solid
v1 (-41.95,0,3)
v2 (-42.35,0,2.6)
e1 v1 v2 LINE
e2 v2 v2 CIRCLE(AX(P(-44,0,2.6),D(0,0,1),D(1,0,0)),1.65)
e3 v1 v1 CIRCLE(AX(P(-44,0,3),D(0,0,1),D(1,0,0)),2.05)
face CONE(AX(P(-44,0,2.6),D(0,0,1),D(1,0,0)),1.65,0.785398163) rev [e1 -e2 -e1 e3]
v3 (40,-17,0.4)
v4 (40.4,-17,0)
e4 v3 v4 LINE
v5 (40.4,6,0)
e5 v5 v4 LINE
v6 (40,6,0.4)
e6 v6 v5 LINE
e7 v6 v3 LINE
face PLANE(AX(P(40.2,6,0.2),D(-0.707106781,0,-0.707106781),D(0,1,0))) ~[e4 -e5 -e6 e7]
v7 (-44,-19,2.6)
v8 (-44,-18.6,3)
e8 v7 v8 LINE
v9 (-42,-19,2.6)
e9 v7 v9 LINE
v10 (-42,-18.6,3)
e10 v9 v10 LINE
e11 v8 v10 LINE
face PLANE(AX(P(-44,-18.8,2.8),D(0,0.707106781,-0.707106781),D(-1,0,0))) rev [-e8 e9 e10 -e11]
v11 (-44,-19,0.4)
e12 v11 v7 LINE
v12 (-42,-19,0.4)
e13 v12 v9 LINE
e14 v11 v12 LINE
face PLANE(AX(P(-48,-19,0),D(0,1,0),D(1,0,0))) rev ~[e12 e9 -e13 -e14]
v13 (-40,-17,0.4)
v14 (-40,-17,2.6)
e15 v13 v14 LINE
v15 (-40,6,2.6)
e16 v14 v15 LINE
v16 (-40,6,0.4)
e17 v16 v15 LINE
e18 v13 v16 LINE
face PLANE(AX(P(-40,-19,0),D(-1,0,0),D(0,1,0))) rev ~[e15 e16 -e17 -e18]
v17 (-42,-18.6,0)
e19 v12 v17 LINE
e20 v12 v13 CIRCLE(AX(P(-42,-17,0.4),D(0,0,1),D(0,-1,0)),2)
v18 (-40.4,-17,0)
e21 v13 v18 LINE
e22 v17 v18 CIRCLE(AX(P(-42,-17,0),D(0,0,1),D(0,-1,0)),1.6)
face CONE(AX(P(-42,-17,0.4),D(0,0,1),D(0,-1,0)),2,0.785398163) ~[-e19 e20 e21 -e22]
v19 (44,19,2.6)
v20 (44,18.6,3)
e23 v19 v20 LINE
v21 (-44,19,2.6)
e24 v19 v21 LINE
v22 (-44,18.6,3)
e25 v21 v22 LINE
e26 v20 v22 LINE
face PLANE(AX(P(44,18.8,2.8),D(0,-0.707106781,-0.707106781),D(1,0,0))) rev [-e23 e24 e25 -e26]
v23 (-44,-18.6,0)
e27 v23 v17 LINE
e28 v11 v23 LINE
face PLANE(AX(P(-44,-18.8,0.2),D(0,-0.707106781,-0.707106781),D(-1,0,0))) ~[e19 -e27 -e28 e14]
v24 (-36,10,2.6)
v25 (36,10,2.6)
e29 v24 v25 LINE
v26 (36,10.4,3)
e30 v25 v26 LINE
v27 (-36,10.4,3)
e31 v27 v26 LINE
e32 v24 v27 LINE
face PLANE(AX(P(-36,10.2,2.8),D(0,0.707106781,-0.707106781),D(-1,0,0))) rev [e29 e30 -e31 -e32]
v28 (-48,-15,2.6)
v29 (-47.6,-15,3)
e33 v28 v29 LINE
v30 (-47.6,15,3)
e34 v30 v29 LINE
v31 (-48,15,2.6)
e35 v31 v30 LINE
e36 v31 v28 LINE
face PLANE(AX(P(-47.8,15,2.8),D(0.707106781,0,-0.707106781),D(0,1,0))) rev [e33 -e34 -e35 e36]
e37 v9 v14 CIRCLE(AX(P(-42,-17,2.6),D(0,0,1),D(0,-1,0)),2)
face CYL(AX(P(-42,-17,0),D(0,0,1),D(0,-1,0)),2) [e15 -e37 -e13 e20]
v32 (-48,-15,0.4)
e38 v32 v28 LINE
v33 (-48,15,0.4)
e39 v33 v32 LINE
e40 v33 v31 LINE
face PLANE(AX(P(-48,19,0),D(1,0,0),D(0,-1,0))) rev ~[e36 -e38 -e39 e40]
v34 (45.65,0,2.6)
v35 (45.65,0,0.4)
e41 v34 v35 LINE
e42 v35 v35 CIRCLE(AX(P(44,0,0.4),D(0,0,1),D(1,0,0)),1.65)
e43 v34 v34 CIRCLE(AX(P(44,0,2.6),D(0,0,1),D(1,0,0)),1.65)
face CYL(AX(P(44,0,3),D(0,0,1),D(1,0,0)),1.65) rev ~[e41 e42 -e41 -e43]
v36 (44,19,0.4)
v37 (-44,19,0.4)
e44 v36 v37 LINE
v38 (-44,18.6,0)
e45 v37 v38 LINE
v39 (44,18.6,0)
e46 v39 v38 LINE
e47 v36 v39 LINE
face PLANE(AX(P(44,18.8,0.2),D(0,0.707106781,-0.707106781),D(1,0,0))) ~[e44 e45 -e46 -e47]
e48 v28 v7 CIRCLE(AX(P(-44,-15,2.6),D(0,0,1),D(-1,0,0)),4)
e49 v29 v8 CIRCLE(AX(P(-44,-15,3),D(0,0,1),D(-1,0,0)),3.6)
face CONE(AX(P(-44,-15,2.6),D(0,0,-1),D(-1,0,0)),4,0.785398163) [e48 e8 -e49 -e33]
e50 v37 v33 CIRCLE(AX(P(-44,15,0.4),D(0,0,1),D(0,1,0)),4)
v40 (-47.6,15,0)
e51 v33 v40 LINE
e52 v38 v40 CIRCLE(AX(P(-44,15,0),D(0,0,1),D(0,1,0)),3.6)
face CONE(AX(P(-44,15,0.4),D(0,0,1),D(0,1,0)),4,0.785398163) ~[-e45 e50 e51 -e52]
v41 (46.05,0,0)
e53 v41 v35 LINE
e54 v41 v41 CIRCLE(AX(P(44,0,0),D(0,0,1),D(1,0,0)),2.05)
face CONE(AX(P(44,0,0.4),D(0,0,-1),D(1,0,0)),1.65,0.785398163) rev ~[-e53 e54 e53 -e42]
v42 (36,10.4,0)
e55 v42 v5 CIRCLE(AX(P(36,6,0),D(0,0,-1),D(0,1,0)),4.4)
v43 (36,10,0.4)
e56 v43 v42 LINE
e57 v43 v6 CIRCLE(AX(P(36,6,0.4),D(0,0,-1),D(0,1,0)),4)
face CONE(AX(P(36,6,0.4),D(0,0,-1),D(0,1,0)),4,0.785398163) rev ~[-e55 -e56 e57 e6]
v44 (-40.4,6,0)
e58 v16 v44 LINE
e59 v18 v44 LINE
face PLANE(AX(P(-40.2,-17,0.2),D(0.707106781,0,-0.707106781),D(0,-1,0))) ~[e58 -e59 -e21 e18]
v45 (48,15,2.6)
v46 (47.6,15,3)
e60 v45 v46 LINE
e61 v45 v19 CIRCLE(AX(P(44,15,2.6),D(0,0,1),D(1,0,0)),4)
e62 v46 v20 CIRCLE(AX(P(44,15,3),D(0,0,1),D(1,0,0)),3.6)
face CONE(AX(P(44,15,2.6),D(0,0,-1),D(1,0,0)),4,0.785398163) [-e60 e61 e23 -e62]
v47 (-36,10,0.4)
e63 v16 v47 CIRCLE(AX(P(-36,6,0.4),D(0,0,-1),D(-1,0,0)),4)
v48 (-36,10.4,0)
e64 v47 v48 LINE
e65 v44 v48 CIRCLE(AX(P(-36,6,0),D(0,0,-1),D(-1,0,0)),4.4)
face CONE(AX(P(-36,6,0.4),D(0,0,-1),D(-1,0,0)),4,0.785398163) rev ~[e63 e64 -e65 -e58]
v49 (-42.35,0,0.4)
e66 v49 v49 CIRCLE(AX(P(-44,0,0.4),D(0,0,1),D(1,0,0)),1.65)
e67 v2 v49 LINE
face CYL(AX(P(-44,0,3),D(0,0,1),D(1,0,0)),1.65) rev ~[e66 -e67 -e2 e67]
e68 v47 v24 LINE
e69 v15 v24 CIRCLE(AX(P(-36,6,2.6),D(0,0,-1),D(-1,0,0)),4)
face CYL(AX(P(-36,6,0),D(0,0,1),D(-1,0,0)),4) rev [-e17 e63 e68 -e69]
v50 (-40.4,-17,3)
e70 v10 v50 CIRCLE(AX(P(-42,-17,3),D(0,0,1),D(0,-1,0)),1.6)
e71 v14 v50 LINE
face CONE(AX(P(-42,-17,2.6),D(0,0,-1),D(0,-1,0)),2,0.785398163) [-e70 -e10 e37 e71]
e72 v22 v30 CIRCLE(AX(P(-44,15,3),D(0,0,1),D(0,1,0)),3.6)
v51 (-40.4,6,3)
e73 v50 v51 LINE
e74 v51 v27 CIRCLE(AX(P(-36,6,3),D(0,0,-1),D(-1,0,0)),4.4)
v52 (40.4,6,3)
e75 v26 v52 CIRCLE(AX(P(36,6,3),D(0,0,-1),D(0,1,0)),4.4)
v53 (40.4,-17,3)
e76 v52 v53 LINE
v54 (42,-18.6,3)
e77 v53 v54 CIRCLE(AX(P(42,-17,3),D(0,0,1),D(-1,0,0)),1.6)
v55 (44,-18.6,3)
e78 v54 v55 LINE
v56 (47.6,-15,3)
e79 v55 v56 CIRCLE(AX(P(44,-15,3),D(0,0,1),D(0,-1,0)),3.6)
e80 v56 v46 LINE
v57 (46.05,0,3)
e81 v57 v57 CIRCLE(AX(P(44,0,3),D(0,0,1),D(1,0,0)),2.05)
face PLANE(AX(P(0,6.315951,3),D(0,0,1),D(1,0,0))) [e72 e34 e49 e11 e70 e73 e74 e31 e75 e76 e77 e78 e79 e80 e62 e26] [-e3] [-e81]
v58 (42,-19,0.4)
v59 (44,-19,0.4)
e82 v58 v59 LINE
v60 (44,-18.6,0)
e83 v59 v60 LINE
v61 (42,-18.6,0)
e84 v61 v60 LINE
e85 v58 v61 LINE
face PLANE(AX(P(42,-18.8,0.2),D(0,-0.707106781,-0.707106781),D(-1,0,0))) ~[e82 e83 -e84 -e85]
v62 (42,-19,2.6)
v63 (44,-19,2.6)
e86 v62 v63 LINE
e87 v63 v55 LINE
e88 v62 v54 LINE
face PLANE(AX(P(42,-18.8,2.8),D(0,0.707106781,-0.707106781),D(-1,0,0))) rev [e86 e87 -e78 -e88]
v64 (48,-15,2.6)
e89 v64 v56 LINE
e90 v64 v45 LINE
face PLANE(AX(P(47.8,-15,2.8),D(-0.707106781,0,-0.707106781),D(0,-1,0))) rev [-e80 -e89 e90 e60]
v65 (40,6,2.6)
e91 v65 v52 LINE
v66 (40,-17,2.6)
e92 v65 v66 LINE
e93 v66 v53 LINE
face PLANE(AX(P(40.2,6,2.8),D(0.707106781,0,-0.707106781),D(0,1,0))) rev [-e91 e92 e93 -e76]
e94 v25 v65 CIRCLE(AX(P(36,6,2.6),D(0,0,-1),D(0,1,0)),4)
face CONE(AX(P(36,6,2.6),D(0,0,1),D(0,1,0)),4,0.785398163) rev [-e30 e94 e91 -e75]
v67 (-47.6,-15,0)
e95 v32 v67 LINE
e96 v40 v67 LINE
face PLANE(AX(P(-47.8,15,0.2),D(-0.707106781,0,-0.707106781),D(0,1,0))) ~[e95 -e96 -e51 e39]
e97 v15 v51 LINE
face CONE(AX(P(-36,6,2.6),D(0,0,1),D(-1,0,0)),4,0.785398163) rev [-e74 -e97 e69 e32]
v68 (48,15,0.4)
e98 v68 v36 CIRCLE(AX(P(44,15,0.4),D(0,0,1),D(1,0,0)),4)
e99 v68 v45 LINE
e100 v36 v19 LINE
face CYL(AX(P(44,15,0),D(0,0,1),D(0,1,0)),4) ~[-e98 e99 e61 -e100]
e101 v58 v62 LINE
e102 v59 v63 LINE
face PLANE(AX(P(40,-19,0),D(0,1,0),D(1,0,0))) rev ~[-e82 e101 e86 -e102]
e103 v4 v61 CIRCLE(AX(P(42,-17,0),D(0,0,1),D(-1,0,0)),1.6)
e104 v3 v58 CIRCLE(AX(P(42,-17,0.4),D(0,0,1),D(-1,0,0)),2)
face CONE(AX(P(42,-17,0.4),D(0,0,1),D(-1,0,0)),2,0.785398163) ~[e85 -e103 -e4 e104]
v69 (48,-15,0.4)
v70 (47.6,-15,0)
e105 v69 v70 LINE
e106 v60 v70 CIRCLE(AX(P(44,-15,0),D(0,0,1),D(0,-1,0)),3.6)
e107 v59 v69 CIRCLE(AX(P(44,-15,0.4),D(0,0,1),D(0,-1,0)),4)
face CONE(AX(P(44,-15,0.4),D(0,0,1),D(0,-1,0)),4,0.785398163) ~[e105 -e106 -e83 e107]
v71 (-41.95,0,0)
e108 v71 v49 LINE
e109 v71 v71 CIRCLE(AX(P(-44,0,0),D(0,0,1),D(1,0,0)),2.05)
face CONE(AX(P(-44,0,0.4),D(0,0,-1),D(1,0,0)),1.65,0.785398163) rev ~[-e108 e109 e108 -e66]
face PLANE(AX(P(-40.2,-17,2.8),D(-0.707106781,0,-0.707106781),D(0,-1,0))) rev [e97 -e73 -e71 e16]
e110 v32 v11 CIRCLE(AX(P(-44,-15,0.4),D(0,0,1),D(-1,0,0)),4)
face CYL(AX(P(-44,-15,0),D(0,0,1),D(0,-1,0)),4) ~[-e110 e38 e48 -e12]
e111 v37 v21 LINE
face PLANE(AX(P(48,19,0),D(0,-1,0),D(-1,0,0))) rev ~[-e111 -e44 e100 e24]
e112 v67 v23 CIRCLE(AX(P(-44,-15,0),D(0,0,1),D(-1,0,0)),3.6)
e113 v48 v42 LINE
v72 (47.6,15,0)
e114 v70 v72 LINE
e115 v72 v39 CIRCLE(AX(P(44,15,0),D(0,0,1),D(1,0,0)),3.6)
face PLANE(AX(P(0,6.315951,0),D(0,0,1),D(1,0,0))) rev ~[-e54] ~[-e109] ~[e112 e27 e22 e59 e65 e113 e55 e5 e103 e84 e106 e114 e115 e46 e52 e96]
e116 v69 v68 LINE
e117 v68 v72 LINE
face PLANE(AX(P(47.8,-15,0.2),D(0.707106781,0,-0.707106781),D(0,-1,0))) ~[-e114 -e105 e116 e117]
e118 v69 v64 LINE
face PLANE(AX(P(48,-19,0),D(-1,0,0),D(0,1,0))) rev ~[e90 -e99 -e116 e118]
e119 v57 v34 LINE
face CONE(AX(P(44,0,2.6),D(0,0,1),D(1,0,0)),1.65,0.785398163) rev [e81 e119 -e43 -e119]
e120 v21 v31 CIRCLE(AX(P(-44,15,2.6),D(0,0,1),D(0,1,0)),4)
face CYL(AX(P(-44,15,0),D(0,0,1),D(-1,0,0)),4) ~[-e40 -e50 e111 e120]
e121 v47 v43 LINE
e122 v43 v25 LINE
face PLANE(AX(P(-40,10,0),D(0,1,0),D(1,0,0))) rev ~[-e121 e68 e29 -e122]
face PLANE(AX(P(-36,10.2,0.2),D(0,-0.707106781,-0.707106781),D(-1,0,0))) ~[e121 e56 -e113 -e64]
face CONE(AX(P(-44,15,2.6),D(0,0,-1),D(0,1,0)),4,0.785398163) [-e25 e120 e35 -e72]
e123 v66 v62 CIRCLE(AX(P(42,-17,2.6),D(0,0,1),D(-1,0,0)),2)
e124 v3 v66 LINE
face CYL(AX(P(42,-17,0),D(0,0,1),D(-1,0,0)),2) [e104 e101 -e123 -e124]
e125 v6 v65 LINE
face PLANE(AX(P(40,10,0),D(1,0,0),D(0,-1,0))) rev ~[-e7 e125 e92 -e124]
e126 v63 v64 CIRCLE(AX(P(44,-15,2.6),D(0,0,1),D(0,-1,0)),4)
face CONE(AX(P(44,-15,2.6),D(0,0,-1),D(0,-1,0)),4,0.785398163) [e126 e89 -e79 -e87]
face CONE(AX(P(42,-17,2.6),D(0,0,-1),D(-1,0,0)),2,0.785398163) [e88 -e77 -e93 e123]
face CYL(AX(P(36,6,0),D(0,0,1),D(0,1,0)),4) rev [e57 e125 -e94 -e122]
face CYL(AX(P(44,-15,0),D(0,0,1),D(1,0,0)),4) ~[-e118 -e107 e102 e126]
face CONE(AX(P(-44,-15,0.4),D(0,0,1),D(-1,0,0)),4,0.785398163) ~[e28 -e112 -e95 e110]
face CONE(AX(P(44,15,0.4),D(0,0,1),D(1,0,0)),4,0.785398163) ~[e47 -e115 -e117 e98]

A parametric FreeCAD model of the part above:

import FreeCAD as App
import Part
import Sketcher
from FreeCAD import Vector


def edges_at(feature, points):
    """Names of the edges that pass closest to the given points."""
    edges = feature.Shape.Edges
    near = lambda p: min(range(len(edges)), key=lambda i: edges[i].distToShape(Part.Vertex(*p))[0])
    return sorted({f"Edge{near(p) + 1}" for p in points})


def add_polygon(sketch, points):
    """Adds a closed chain of lines whose ends are joined by coincident constraints."""
    first, n = sketch.GeometryCount, len(points)
    for a, b in zip(points, points[1:] + points[:1]):
        sketch.addGeometry(Part.LineSegment(App.Vector(*a, 0), App.Vector(*b, 0)), False)
    for i in range(n):
        sketch.addConstraint(Sketcher.Constraint("Coincident", first + i, 2, first + (i + 1) % n, 1))

doc = App.newDocument("Part")
params = doc.addObject("Spreadsheet::Sheet", "Params")
for row, (alias, value) in enumerate([
    ("sketch1_width", "8 mm"),
    ("sketch1_width2", "80 mm"),
    ("sketch1_height", "29 mm"),
    ("sketch1_height2", "38 mm"),
    ("pad1_length", "3 mm"),
    ("sketch2_diameter", "3.3 mm"),
    ("fillet_radius", "4 mm"),
    ("fillet2_radius", "2 mm"),
    ("chamfer_size", "0.4 mm"),
], start=1):
    params.set(f"A{row}", alias)
    params.set(f"B{row}", "=" + value)
    params.setAlias(f"B{row}", alias)

body = doc.addObject("PartDesign::Body", "Body")

sketch1 = body.newObject("Sketcher::SketchObject", "Sketch")
sketch1.AttachmentSupport = (doc.getObject("XY_Plane"), [""])
sketch1.MapMode = "FlatFace"
add_polygon(sketch1, [(-48, -19), (-40, -19), (-40, 10), (40, 10), (40, -19), (48, -19), (48, 19), (-48, 19)])
sketch1.addConstraint(Sketcher.Constraint("Horizontal", 0))
sketch1.addConstraint(Sketcher.Constraint("Vertical", 1))
sketch1.addConstraint(Sketcher.Constraint("Horizontal", 2))
sketch1.addConstraint(Sketcher.Constraint("Vertical", 3))
sketch1.addConstraint(Sketcher.Constraint("Horizontal", 4))
sketch1.addConstraint(Sketcher.Constraint("Vertical", 5))
sketch1.addConstraint(Sketcher.Constraint("Horizontal", 6))
sketch1.addConstraint(Sketcher.Constraint("Vertical", 7))
sketch1.addConstraint(Sketcher.Constraint("Symmetric", 4, 2, 6, 2, -1, 1))
sketch1.addConstraint(Sketcher.Constraint("Symmetric", 0, 2, 3, 2, -2))
sketch1.addConstraint(Sketcher.Constraint("DistanceX", 0, 1, 0, 2, 8.0))
sketch1.addConstraint(Sketcher.Constraint("DistanceX", 2, 1, 2, 2, 80.0))
sketch1.addConstraint(Sketcher.Constraint("DistanceY", 1, 1, 1, 2, 29.0))
sketch1.addConstraint(Sketcher.Constraint("DistanceY", 5, 1, 5, 2, 38.0))
sketch1.setExpression("Constraints[18]", "Params.sketch1_width")
sketch1.setExpression("Constraints[19]", "Params.sketch1_width2")
sketch1.setExpression("Constraints[20]", "Params.sketch1_height")
sketch1.setExpression("Constraints[21]", "Params.sketch1_height2")
pad1 = body.newObject("PartDesign::Pad", "Pad")
pad1.Profile = sketch1
pad1.setExpression("Length", "Params.pad1_length")

sketch2 = body.newObject("Sketcher::SketchObject", "Sketch001")
sketch2.AttachmentSupport = (doc.getObject("XY_Plane"), [""])
sketch2.MapMode = "FlatFace"
sketch2.AttachmentOffset = App.Placement(Vector(0, 0, 3), App.Rotation())
sketch2.addGeometry(Part.Circle(Vector(-44, 0, 0), Vector(0, 0, 1), 1.65), False)
sketch2.addGeometry(Part.Circle(Vector(44, 0, 0), Vector(0, 0, 1), 1.65), False)
sketch2.addConstraint(Sketcher.Constraint("Equal", 0, 1))
sketch2.addConstraint(Sketcher.Constraint("Symmetric", 0, 3, 1, 3, -1, 1))
sketch2.addConstraint(Sketcher.Constraint("PointOnObject", 0, 3, -1))
sketch2.addConstraint(Sketcher.Constraint("Diameter", 0, 3.3))
sketch2.addConstraint(Sketcher.Constraint("DistanceX", 0, 3, -1, 1, 44.0))
sketch2.setExpression("Constraints[3]", "Params.sketch2_diameter")
pocket1 = body.newObject("PartDesign::Pocket", "Pocket")
pocket1.Profile = sketch2
pocket1.Type = "ThroughAll"
doc.recompute()

fillet = body.newObject("PartDesign::Fillet", "Fillet")
fillet.Base = (pocket1, edges_at(pocket1, [
    (-40, 10, 1.5),
    (40, 10, 1.5),
    (48, -19, 1.5),
    (-48, -19, 1.5),
    (-48, 19, 1.5),
    (48, 19, 1.5),
]))
fillet.setExpression("Radius", "Params.fillet_radius")
doc.recompute()

fillet2 = body.newObject("PartDesign::Fillet", "Fillet001")
fillet2.Base = (fillet, edges_at(fillet, [(40, -19, 1.5), (-40, -19, 1.5)]))
fillet2.setExpression("Radius", "Params.fillet2_radius")
doc.recompute()

chamfer = body.newObject("PartDesign::Chamfer", "Chamfer")
chamfer.Base = (fillet2, edges_at(fillet2, [
    (-43, -19, 3),
    (-40.586, -18.414, 3),
    (-46.828, -17.828, 3),
    (-40, -5.5, 3),
    (-48, 0, 3),
    (-38.828, 8.828, 3),
    (-46.828, 17.828, 3),
    (0, 10, 3),
    (0, 19, 3),
    (38.828, 8.828, 3),
    (46.828, 17.828, 3),
    (40, -5.5, 3),
    (48, 0, 3),
    (40.586, -18.414, 3),
    (46.828, -17.828, 3),
    (43, -19, 3),
    (-45.65, 0, 3),
    (42.35, 0, 3),
    (-43, -19, 0),
    (-40.586, -18.414, 0),
    (-46.828, -17.828, 0),
    (-40, -5.5, 0),
    (-48, 0, 0),
    (-38.828, 8.828, 0),
    (-46.828, 17.828, 0),
    (0, 10, 0),
    (0, 19, 0),
    (38.828, 8.828, 0),
    (46.828, 17.828, 0),
    (40, -5.5, 0),
    (48, 0, 0),
    (40.586, -18.414, 0),
    (46.828, -17.828, 0),
    (43, -19, 0),
    (-45.65, 0, 0),
    (42.35, 0, 0),
]))
chamfer.setExpression("Size", "Params.chamfer_size")

doc.recompute()
